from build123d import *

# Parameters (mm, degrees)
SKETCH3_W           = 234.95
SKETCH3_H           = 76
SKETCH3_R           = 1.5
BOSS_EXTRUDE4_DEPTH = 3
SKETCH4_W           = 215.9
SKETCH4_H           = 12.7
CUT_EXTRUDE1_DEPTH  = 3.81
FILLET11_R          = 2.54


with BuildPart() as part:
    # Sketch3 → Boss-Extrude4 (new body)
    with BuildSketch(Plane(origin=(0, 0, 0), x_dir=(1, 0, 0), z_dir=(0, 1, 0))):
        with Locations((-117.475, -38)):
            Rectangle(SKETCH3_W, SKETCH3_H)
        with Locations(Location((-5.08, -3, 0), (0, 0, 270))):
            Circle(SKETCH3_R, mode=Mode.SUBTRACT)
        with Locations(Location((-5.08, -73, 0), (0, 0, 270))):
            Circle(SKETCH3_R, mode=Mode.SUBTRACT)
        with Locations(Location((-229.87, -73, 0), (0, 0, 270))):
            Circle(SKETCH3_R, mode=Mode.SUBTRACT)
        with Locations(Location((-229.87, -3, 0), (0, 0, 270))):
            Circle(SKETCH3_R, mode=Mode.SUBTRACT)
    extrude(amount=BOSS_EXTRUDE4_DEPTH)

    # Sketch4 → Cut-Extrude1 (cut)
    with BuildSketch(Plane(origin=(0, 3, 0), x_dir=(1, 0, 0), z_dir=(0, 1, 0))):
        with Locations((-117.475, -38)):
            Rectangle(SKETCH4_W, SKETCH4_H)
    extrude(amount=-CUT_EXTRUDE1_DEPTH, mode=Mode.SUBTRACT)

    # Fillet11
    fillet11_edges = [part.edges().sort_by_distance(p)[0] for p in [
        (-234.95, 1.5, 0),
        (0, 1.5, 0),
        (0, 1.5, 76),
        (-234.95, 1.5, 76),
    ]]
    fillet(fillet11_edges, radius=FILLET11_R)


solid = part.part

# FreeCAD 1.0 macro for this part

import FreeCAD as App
import Part
import Sketcher
Q = App.Units.Quantity


def edges_at(feature, points):
    """Names of the edges that pass closest to the given points."""
    edges = feature.Shape.Edges
    near = lambda p: min(range(len(edges)), key=lambda i: edges[i].distToShape(Part.Vertex(*p))[0])
    return sorted({f"Edge{near(p) + 1}" for p in points})

doc = App.newDocument("Part")
body = doc.addObject("PartDesign::Body", "Body")

sketch1 = body.newObject("Sketcher::SketchObject", "Sketch")
sketch1.AttachmentSupport = (doc.getObject("XZ_Plane"), [""])
sketch1.MapMode = "FlatFace"
sketch1.addGeometry(Part.LineSegment(App.Vector(-234.9, 0, 0), App.Vector(-234.9, 76, 0)), False)
sketch1.addGeometry(Part.LineSegment(App.Vector(-234.9, 76, 0), App.Vector(0, 76, 0)), False)
sketch1.addGeometry(Part.LineSegment(App.Vector(0, 76, 0), App.Vector(0, 0, 0)), False)
sketch1.addGeometry(Part.LineSegment(App.Vector(0, 0, 0), App.Vector(-234.9, 0, 0)), False)
sketch1.addGeometry(Part.Circle(App.Vector(-229.9, 73, 0), App.Vector(0, 0, 1), 1.5), False)
sketch1.addGeometry(Part.Circle(App.Vector(-5.1, 73, 0), App.Vector(0, 0, 1), 1.5), False)
sketch1.addGeometry(Part.Circle(App.Vector(-229.9, 3, 0), App.Vector(0, 0, 1), 1.5), False)
sketch1.addGeometry(Part.Circle(App.Vector(-5.1, 3, 0), App.Vector(0, 0, 1), 1.5), False)
sketch1.addConstraint(Sketcher.Constraint("Coincident", 0, 2, 1, 1))
sketch1.addConstraint(Sketcher.Constraint("Coincident", 1, 2, 2, 1))
sketch1.addConstraint(Sketcher.Constraint("Coincident", 2, 2, 3, 1))
sketch1.addConstraint(Sketcher.Constraint("Coincident", 3, 2, 0, 1))
sketch1.addConstraint(Sketcher.Constraint("Vertical", 0))
sketch1.addConstraint(Sketcher.Constraint("Horizontal", 1))
sketch1.addConstraint(Sketcher.Constraint("Vertical", 2))
sketch1.addConstraint(Sketcher.Constraint("Horizontal", 3))
sketch1.addConstraint(Sketcher.Constraint("Coincident", 2, 2, -1, 1))
sketch1.addConstraint(Sketcher.Constraint("Equal", 4, 5))
sketch1.addConstraint(Sketcher.Constraint("Equal", 5, 6))
sketch1.addConstraint(Sketcher.Constraint("Equal", 6, 7))
sketch1.addConstraint(Sketcher.Constraint("Horizontal", 4, 3, 5, 3))
sketch1.addConstraint(Sketcher.Constraint("Horizontal", 6, 3, 7, 3))
sketch1.addConstraint(Sketcher.Constraint("Vertical", 4, 3, 6, 3))
sketch1.addConstraint(Sketcher.Constraint("Vertical", 5, 3, 7, 3))
sketch1.addConstraint(Sketcher.Constraint("DistanceX", 1, 1, 1, 2, Q("9.25 in")))
sketch1.addConstraint(Sketcher.Constraint("DistanceX", 5, 3, -1, 1, Q("0.2 in")))
sketch1.addConstraint(Sketcher.Constraint("DistanceX", 0, 2, 4, 3, Q("0.2 in")))
sketch1.addConstraint(Sketcher.Constraint("Diameter", 4, Q("3 mm")))
sketch1.addConstraint(Sketcher.Constraint("DistanceY", 0, 1, 0, 2, Q("76 mm")))
sketch1.addConstraint(Sketcher.Constraint("DistanceY", -1, 1, 4, 3, Q("73 mm")))
sketch1.addConstraint(Sketcher.Constraint("DistanceY", -1, 1, 6, 3, Q("3 mm")))
pad1 = body.newObject("PartDesign::Pad", "Pad")
pad1.Profile = sketch1
pad1.Length = 3
pad1.Reversed = True

sketch2 = body.newObject("Sketcher::SketchObject", "Sketch001")
sketch2.AttachmentSupport = (doc.getObject("XZ_Plane"), [""])
sketch2.MapMode = "FlatFace"
sketch2.AttachmentOffset = App.Placement(App.Vector(0, 0, -3), App.Rotation())
sketch2.addGeometry(Part.LineSegment(App.Vector(-225, 32, 0), App.Vector(-225, 44, 0)), False)
sketch2.addGeometry(Part.LineSegment(App.Vector(-225, 44, 0), App.Vector(-10, 44, 0)), False)
sketch2.addGeometry(Part.LineSegment(App.Vector(-10, 44, 0), App.Vector(-10, 32, 0)), False)
sketch2.addGeometry(Part.LineSegment(App.Vector(-10, 32, 0), App.Vector(-225, 32, 0)), False)
sketch2.addConstraint(Sketcher.Constraint("Coincident", 0, 2, 1, 1))
sketch2.addConstraint(Sketcher.Constraint("Coincident", 1, 2, 2, 1))
sketch2.addConstraint(Sketcher.Constraint("Coincident", 2, 2, 3, 1))
sketch2.addConstraint(Sketcher.Constraint("Coincident", 3, 2, 0, 1))
sketch2.addConstraint(Sketcher.Constraint("Vertical", 0))
sketch2.addConstraint(Sketcher.Constraint("Horizontal", 1))
sketch2.addConstraint(Sketcher.Constraint("Vertical", 2))
sketch2.addConstraint(Sketcher.Constraint("Horizontal", 3))
sketch2.addConstraint(Sketcher.Constraint("DistanceX", 1, 1, 1, 2, Q("8.5 in")))
sketch2.addConstraint(Sketcher.Constraint("DistanceY", 0, 1, 0, 2, Q("0.5 in")))
sketch2.addConstraint(Sketcher.Constraint("DistanceX", 0, 2, -1, 1, Q("8.875 in")))
sketch2.addConstraint(Sketcher.Constraint("DistanceY", -1, 1, 0, 2, Q("44.35 mm")))
pocket1 = body.newObject("PartDesign::Pocket", "Pocket")
pocket1.Profile = sketch2
pocket1.Length = Q("0.15 in")
pocket1.Reversed = True
doc.recompute()

fillet = body.newObject("PartDesign::Fillet", "Fillet")
fillet.Base = (pocket1, edges_at(pocket1, [
    (-234.95, 1.5, 0),
    (0, 1.5, 0),
    (0, 1.5, 76),
    (-234.95, 1.5, 76),
]))
fillet.Radius = Q("0.1 in")

doc.recompute()
